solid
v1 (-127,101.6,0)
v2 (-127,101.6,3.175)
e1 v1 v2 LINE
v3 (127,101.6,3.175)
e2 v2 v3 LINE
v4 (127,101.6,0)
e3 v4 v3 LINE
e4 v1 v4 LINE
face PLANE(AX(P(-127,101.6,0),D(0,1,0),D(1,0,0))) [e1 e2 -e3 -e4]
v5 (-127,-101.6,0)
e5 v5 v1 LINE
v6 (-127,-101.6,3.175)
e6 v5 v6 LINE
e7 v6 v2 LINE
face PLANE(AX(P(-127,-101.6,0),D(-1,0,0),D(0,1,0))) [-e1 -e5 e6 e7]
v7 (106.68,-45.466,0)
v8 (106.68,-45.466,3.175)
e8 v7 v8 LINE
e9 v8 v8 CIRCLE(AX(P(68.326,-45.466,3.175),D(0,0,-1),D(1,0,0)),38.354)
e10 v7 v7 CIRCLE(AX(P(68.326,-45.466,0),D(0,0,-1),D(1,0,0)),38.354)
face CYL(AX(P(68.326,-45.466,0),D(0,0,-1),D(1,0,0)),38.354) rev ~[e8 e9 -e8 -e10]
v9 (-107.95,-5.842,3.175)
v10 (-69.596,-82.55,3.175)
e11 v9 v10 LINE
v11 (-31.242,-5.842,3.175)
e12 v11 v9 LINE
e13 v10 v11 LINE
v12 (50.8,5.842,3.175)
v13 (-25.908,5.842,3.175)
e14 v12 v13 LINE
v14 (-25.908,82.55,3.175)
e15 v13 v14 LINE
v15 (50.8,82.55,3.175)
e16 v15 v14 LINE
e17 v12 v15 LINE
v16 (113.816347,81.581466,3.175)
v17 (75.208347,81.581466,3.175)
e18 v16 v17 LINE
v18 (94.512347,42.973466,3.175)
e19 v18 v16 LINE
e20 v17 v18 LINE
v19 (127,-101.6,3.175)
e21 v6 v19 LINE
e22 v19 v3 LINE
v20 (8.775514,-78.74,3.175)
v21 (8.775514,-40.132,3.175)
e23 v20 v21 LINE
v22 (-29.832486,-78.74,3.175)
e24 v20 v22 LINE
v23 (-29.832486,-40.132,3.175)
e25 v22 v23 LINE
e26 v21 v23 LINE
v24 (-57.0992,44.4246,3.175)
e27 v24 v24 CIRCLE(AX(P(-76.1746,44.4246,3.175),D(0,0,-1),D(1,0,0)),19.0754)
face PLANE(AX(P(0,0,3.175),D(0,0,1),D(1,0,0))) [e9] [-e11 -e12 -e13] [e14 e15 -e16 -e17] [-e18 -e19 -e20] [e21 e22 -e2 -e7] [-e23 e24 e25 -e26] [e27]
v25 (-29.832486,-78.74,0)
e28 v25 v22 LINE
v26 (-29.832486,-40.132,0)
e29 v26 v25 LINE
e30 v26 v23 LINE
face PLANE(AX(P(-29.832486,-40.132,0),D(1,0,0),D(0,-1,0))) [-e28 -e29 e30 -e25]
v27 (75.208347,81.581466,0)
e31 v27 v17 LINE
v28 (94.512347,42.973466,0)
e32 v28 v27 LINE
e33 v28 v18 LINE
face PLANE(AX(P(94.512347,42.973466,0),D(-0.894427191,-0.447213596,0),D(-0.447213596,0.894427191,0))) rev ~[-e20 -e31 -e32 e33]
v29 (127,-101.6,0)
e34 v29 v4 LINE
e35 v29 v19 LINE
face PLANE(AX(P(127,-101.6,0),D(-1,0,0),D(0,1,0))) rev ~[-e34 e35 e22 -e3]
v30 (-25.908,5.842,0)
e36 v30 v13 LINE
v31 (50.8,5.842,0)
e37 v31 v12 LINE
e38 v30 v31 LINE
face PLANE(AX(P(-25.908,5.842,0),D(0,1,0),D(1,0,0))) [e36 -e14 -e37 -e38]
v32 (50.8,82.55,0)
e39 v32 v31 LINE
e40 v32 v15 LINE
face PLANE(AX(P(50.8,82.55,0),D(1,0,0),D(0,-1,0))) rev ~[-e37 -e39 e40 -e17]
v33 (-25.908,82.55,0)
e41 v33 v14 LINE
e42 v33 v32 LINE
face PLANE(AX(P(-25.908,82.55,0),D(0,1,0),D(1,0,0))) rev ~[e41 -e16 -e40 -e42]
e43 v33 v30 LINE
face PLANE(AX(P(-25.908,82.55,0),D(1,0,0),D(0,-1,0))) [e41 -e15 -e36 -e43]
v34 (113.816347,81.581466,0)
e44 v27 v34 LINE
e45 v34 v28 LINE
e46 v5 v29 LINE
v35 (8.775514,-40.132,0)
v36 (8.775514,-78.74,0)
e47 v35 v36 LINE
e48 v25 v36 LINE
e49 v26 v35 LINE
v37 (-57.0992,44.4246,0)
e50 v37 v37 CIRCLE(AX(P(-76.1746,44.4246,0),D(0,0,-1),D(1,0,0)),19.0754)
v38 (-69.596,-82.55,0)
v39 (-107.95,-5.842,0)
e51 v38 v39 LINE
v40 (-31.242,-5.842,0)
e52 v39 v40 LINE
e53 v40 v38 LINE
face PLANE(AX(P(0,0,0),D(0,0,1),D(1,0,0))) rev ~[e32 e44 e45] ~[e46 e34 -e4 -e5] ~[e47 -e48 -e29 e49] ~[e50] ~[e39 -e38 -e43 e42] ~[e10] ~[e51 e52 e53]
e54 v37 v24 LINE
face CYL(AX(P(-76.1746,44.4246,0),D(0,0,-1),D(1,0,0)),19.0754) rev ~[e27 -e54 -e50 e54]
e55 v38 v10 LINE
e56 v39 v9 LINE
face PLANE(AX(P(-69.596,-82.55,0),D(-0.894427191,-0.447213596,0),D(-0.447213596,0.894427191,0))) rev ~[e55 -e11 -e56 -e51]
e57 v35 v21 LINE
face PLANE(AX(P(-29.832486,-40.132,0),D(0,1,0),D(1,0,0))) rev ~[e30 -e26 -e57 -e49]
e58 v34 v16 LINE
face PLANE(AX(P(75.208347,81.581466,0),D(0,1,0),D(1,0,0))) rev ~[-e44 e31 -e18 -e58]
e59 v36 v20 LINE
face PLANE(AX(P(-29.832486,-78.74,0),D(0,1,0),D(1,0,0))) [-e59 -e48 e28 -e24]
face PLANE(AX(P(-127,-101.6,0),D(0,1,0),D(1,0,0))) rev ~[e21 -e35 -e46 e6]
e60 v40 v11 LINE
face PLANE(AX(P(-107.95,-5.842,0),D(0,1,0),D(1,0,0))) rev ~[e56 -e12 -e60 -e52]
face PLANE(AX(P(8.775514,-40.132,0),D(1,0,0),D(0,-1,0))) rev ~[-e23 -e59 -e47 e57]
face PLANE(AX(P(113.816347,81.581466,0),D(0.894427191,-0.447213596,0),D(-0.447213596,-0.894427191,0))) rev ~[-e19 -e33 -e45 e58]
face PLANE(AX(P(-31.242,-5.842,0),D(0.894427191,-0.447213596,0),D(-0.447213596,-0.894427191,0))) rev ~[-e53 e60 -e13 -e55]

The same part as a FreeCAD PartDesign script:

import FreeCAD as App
import Part
import Sketcher
Q = App.Units.Quantity


def add_polygon(sketch, points):
    """Adds a closed chain of lines whose ends are joined by coincident constraints."""
    first, n = sketch.GeometryCount, len(points)
    for a, b in zip(points, points[1:] + points[:1]):
        sketch.addGeometry(Part.LineSegment(App.Vector(*a, 0), App.Vector(*b, 0)), False)
    for i in range(n):
        sketch.addConstraint(Sketcher.Constraint("Coincident", first + i, 2, first + (i + 1) % n, 1))

doc = App.newDocument("Part")
body = doc.addObject("PartDesign::Body", "Body")

# Sketch on XY plane
sketch1 = body.newObject("Sketcher::SketchObject", "Sketch")
sketch1.AttachmentSupport = (doc.getObject("XY_Plane"), [""])
sketch1.MapMode = "FlatFace"
add_polygon(sketch1, [(-127, 101.6), (-127, -101.6), (127, -101.6), (127, 101.6)])  # lines 0-3
sketch1.addConstraint(Sketcher.Constraint("Vertical", 0))
sketch1.addConstraint(Sketcher.Constraint("Horizontal", 1))
sketch1.addConstraint(Sketcher.Constraint("Vertical", 2))
sketch1.addConstraint(Sketcher.Constraint("Horizontal", 3))
sketch1.addConstraint(Sketcher.Constraint("Symmetric", 0, 2, 2, 2, -1, 1))
sketch1.addConstraint(Sketcher.Constraint("DistanceX", 1, 1, 1, 2, Q("10 in")))
sketch1.addConstraint(Sketcher.Constraint("DistanceY", 0, 2, 0, 1, Q("8 in")))
pad1 = body.newObject("PartDesign::Pad", "Pad")
pad1.Profile = sketch1
pad1.Length = Q("0.125 in")

# Sketch on XY plane
sketch2 = body.newObject("Sketcher::SketchObject", "Sketch001")
sketch2.AttachmentSupport = (doc.getObject("XY_Plane"), [""])
sketch2.MapMode = "FlatFace"
add_polygon(sketch2, [(-69.596, -82.55), (-107.95, -5.842), (-31.242, -5.842)])  # lines 0-2
sketch2.addConstraint(Sketcher.Constraint("Horizontal", 1))
sketch2.addConstraint(Sketcher.Constraint("Equal", 0, 2))
sketch2.addConstraint(Sketcher.Constraint("DistanceX", 1, 1, 1, 2, Q("3.02 in")))
sketch2.addConstraint(Sketcher.Constraint("DistanceX", 0, 2, -1, 1, Q("4.25 in")))
sketch2.addConstraint(Sketcher.Constraint("DistanceY", 0, 2, -1, 1, Q("0.23 in")))
sketch2.addConstraint(Sketcher.Constraint("DistanceY", 2, 2, -1, 1, Q("3.25 in")))
pocket1 = body.newObject("PartDesign::Pocket", "Pocket")
pocket1.Profile = sketch2
pocket1.Length = Q("1 in")
pocket1.Reversed = True

# Sketch on XY plane
sketch3 = body.newObject("Sketcher::SketchObject", "Sketch002")
sketch3.AttachmentSupport = (doc.getObject("XY_Plane"), [""])
sketch3.MapMode = "FlatFace"
add_polygon(sketch3, [(-25.908, 5.842), (-25.908, 82.55), (50.8, 82.55), (50.8, 5.842)])  # lines 0-3
sketch3.addConstraint(Sketcher.Constraint("Vertical", 0))
sketch3.addConstraint(Sketcher.Constraint("Horizontal", 1))
sketch3.addConstraint(Sketcher.Constraint("Vertical", 2))
sketch3.addConstraint(Sketcher.Constraint("Horizontal", 3))
sketch3.addConstraint(Sketcher.Constraint("Equal", 3, 0))
sketch3.addConstraint(Sketcher.Constraint("DistanceX", -1, 1, 1, 2, Q("2 in")))
sketch3.addConstraint(Sketcher.Constraint("DistanceX", 1, 1, 1, 2, Q("3.02 in")))
sketch3.addConstraint(Sketcher.Constraint("DistanceY", -1, 1, 0, 2, Q("3.25 in")))
pocket2 = body.newObject("PartDesign::Pocket", "Pocket001")
pocket2.Profile = sketch3
pocket2.Length = Q("1 in")
pocket2.Reversed = True

# Sketch on XY plane
sketch4 = body.newObject("Sketcher::SketchObject", "Sketch003")
sketch4.AttachmentSupport = (doc.getObject("XY_Plane"), [""])
sketch4.MapMode = "FlatFace"
sketch4.addGeometry(Part.Circle(App.Vector(68.326, -45.466, 0), App.Vector(0, 0, 1), 38.354), False)
sketch4.addConstraint(Sketcher.Constraint("Diameter", 0, Q("3.02 in")))
sketch4.addConstraint(Sketcher.Constraint("DistanceX", -1, 1, 0, 3, Q("2.69 in")))
sketch4.addConstraint(Sketcher.Constraint("DistanceY", 0, 3, -1, 1, Q("1.79 in")))
pocket3 = body.newObject("PartDesign::Pocket", "Pocket002")
pocket3.Profile = sketch4
pocket3.Length = Q("1 in")
pocket3.Reversed = True

# Sketch on XY plane
sketch5 = body.newObject("Sketcher::SketchObject", "Sketch004")
sketch5.AttachmentSupport = (doc.getObject("XY_Plane"), [""])
sketch5.MapMode = "FlatFace"
add_polygon(sketch5, [(94.512347, 42.973466), (75.208347, 81.581466), (113.816347, 81.581466)])  # lines 0-2
sketch5.addConstraint(Sketcher.Constraint("Horizontal", 1))
sketch5.addConstraint(Sketcher.Constraint("Equal", 0, 2))
sketch5.addConstraint(Sketcher.Constraint("DistanceX", 1, 1, 1, 2, Q("1.52 in")))
sketch5.addConstraint(Sketcher.Constraint("DistanceY", 2, 2, 1, 2, Q("1.52 in")))
sketch5.addConstraint(Sketcher.Constraint("DistanceX", -1, 1, 0, 2, Q("75.208347 mm")))
sketch5.addConstraint(Sketcher.Constraint("DistanceY", -1, 1, 0, 2, Q("81.581466 mm")))
pocket4 = body.newObject("PartDesign::Pocket", "Pocket003")
pocket4.Profile = sketch5
pocket4.Length = Q("1 in")
pocket4.Reversed = True

# Sketch on XY plane
sketch6 = body.newObject("Sketcher::SketchObject", "Sketch005")
sketch6.AttachmentSupport = (doc.getObject("XY_Plane"), [""])
sketch6.MapMode = "FlatFace"
sketch6.addGeometry(Part.Circle(App.Vector(-76.1746, 44.4246, 0), App.Vector(0, 0, 1), 19.0754), False)
sketch6.addConstraint(Sketcher.Constraint("Diameter", 0, Q("1.502 in")))
sketch6.addConstraint(Sketcher.Constraint("DistanceX", 0, 3, -1, 1, Q("2.999 in")))
sketch6.addConstraint(Sketcher.Constraint("DistanceY", -1, 1, 0, 3, Q("1.749 in")))
pocket5 = body.newObject("PartDesign::Pocket", "Pocket004")
pocket5.Profile = sketch6
pocket5.Length = Q("1 in")
pocket5.Reversed = True

# Sketch on XY plane
sketch7 = body.newObject("Sketcher::SketchObject", "Sketch006")
sketch7.AttachmentSupport = (doc.getObject("XY_Plane"), [""])
sketch7.MapMode = "FlatFace"
add_polygon(sketch7, [(-29.832486, -78.74), (-29.832486, -40.132), (8.775514, -40.132), (8.775514, -78.74)])  # lines 0-3
sketch7.addConstraint(Sketcher.Constraint("Vertical", 0))
sketch7.addConstraint(Sketcher.Constraint("Horizontal", 1))
sketch7.addConstraint(Sketcher.Constraint("Vertical", 2))
sketch7.addConstraint(Sketcher.Constraint("Horizontal", 3))
sketch7.addConstraint(Sketcher.Constraint("Equal", 3, 0))
sketch7.addConstraint(Sketcher.Constraint("DistanceX", 1, 1, 1, 2, Q("1.52 in")))
sketch7.addConstraint(Sketcher.Constraint("DistanceY", 2, 2, -1, 1, Q("3.1 in")))
sketch7.addConstraint(Sketcher.Constraint("DistanceX", 0, 2, -1, 1, Q("29.832486 mm")))
pocket6 = body.newObject("PartDesign::Pocket", "Pocket005")
pocket6.Profile = sketch7
pocket6.Length = Q("1 in")
pocket6.Reversed = True

doc.recompute()
